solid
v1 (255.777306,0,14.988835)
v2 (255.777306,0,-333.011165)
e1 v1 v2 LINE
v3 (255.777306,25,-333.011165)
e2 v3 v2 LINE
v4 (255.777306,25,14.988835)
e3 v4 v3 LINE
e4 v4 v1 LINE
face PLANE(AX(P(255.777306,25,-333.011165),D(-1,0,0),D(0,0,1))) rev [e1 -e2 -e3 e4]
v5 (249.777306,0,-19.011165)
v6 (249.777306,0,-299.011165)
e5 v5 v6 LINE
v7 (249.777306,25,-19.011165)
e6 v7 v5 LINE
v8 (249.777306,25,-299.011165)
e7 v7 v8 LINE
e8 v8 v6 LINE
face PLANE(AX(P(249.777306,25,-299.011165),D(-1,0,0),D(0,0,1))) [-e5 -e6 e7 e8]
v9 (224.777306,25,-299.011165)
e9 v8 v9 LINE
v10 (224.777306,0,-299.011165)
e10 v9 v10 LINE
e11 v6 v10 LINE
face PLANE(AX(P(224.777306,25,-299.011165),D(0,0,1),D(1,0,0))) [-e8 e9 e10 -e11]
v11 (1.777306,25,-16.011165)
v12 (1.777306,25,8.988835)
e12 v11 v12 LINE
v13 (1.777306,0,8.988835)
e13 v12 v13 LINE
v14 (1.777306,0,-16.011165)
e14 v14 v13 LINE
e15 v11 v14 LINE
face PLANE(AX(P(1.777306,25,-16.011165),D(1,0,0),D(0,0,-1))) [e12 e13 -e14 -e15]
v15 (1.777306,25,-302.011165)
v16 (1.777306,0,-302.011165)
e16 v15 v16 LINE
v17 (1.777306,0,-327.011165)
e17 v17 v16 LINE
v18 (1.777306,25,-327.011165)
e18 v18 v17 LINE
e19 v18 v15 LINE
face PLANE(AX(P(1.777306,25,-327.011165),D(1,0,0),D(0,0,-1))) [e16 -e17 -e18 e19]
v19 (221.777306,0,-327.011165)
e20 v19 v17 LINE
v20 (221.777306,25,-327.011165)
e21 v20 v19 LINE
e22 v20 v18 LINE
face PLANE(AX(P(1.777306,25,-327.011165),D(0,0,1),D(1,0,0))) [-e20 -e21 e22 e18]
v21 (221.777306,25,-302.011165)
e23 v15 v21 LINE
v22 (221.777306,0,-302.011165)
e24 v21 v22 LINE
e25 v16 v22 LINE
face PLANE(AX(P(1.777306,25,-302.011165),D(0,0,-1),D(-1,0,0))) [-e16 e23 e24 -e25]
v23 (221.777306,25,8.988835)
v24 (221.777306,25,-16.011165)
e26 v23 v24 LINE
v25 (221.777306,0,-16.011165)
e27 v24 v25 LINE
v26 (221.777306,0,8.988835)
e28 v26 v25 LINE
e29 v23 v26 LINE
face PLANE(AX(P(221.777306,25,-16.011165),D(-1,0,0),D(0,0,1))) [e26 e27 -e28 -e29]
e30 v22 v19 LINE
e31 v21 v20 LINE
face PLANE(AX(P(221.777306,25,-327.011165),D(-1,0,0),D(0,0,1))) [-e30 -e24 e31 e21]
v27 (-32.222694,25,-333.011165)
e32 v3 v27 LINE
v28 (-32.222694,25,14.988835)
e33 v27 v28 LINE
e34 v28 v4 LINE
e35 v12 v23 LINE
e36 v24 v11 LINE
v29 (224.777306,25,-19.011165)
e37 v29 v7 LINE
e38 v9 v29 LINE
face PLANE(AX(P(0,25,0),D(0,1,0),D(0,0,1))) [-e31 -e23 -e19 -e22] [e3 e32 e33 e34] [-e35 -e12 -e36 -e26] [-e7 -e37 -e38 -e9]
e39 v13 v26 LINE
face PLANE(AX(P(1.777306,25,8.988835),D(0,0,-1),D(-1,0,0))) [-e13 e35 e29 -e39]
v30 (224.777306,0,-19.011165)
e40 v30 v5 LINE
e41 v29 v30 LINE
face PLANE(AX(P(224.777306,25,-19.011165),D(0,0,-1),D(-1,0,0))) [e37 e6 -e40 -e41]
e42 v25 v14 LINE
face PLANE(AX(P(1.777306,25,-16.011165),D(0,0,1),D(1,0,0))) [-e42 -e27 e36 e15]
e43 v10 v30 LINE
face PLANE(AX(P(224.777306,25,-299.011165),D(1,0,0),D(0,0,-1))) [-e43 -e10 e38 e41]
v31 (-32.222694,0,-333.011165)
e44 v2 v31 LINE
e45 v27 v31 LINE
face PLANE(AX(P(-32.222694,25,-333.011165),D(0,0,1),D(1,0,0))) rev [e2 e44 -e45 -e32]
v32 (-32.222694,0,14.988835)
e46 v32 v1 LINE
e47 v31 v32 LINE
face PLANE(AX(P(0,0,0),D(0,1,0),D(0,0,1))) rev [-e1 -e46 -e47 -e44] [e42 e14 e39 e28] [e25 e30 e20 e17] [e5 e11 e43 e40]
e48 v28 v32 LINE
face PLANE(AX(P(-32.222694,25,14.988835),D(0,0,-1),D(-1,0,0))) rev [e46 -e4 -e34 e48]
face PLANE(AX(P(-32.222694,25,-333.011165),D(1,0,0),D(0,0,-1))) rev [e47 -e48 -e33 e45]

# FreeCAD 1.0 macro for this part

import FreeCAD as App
import Part
import Sketcher
from FreeCAD import Vector

doc = App.newDocument("Part")
body = doc.addObject("PartDesign::Body", "Body")

# Sketch on XZ plane
sketch1 = body.newObject("Sketcher::SketchObject", "Sketch")
sketch1.AttachmentSupport = (doc.getObject("XZ_Plane"), [""])
sketch1.MapMode = "FlatFace"
sketch1.addGeometry(Part.LineSegment(Vector(-32, -333, 0), Vector(-32, 15, 0)), False)
sketch1.addGeometry(Part.LineSegment(Vector(-32, 15, 0), Vector(256, 15, 0)), False)
sketch1.addGeometry(Part.LineSegment(Vector(256, 15, 0), Vector(256, -333, 0)), False)
sketch1.addGeometry(Part.LineSegment(Vector(256, -333, 0), Vector(-32, -333, 0)), False)
sketch1.addConstraint(Sketcher.Constraint("Coincident", 0, 2, 1, 1))
sketch1.addConstraint(Sketcher.Constraint("Coincident", 1, 2, 2, 1))
sketch1.addConstraint(Sketcher.Constraint("Coincident", 2, 2, 3, 1))
sketch1.addConstraint(Sketcher.Constraint("Coincident", 3, 2, 0, 1))
sketch1.addConstraint(Sketcher.Constraint("Vertical", 0))
sketch1.addConstraint(Sketcher.Constraint("Horizontal", 1))
sketch1.addConstraint(Sketcher.Constraint("Vertical", 2))
sketch1.addConstraint(Sketcher.Constraint("Horizontal", 3))
sketch1.addConstraint(Sketcher.Constraint("DistanceX", 1, 1, 1, 2, 288.0))
sketch1.addConstraint(Sketcher.Constraint("DistanceY", 0, 1, 0, 2, 348.0))
sketch1.addConstraint(Sketcher.Constraint("DistanceX", 0, 2, -1, 1, 32.222694))
sketch1.addConstraint(Sketcher.Constraint("DistanceY", -1, 1, 0, 2, 14.988835))
pad1 = body.newObject("PartDesign::Pad", "Pad")
pad1.Profile = sketch1
pad1.Length = 25
pad1.Reversed = True

# Sketch on XZ plane
sketch2 = body.newObject("Sketcher::SketchObject", "Sketch001")
sketch2.AttachmentSupport = (doc.getObject("XZ_Plane"), [""])
sketch2.MapMode = "FlatFace"
sketch2.addGeometry(Part.LineSegment(Vector(2, -327, 0), Vector(2, -302, 0)), False)
sketch2.addGeometry(Part.LineSegment(Vector(2, -302, 0), Vector(222, -302, 0)), False)
sketch2.addGeometry(Part.LineSegment(Vector(222, -302, 0), Vector(222, -327, 0)), False)
sketch2.addGeometry(Part.LineSegment(Vector(222, -327, 0), Vector(2, -327, 0)), False)
sketch2.addGeometry(Part.LineSegment(Vector(2, -16, 0), Vector(2, 9, 0)), False)
sketch2.addGeometry(Part.LineSegment(Vector(2, 9, 0), Vector(222, 9, 0)), False)
sketch2.addGeometry(Part.LineSegment(Vector(222, 9, 0), Vector(222, -16, 0)), False)
sketch2.addGeometry(Part.LineSegment(Vector(222, -16, 0), Vector(2, -16, 0)), False)
sketch2.addGeometry(Part.LineSegment(Vector(225, -299, 0), Vector(225, -19, 0)), False)
sketch2.addGeometry(Part.LineSegment(Vector(225, -19, 0), Vector(250, -19, 0)), False)
sketch2.addGeometry(Part.LineSegment(Vector(250, -19, 0), Vector(250, -299, 0)), False)
sketch2.addGeometry(Part.LineSegment(Vector(250, -299, 0), Vector(225, -299, 0)), False)
sketch2.addConstraint(Sketcher.Constraint("Coincident", 0, 2, 1, 1))
sketch2.addConstraint(Sketcher.Constraint("Coincident", 1, 2, 2, 1))
sketch2.addConstraint(Sketcher.Constraint("Coincident", 2, 2, 3, 1))
sketch2.addConstraint(Sketcher.Constraint("Coincident", 3, 2, 0, 1))
sketch2.addConstraint(Sketcher.Constraint("Coincident", 4, 2, 5, 1))
sketch2.addConstraint(Sketcher.Constraint("Coincident", 5, 2, 6, 1))
sketch2.addConstraint(Sketcher.Constraint("Coincident", 6, 2, 7, 1))
sketch2.addConstraint(Sketcher.Constraint("Coincident", 7, 2, 4, 1))
sketch2.addConstraint(Sketcher.Constraint("Coincident", 8, 2, 9, 1))
sketch2.addConstraint(Sketcher.Constraint("Coincident", 9, 2, 10, 1))
sketch2.addConstraint(Sketcher.Constraint("Coincident", 10, 2, 11, 1))
sketch2.addConstraint(Sketcher.Constraint("Coincident", 11, 2, 8, 1))
sketch2.addConstraint(Sketcher.Constraint("Vertical", 0))
sketch2.addConstraint(Sketcher.Constraint("Horizontal", 1))
sketch2.addConstraint(Sketcher.Constraint("Vertical", 2))
sketch2.addConstraint(Sketcher.Constraint("Horizontal", 3))
sketch2.addConstraint(Sketcher.Constraint("Vertical", 4))
sketch2.addConstraint(Sketcher.Constraint("Horizontal", 5))
sketch2.addConstraint(Sketcher.Constraint("Vertical", 6))
sketch2.addConstraint(Sketcher.Constraint("Horizontal", 7))
sketch2.addConstraint(Sketcher.Constraint("Vertical", 8))
sketch2.addConstraint(Sketcher.Constraint("Horizontal", 9))
sketch2.addConstraint(Sketcher.Constraint("Vertical", 10))
sketch2.addConstraint(Sketcher.Constraint("Horizontal", 11))
sketch2.addConstraint(Sketcher.Constraint("Vertical", 3, 2, 4, 2))
sketch2.addConstraint(Sketcher.Constraint("Vertical", 2, 2, 5, 2))
sketch2.addConstraint(Sketcher.Constraint("Equal", 11, 0))
sketch2.addConstraint(Sketcher.Constraint("Equal", 2, 4))
sketch2.addConstraint(Sketcher.Constraint("DistanceX", 1, 1, 1, 2, 220.0))
sketch2.addConstraint(Sketcher.Constraint("DistanceX", 9, 1, 9, 2, 25.0))
sketch2.addConstraint(Sketcher.Constraint("DistanceY", 8, 1, 8, 2, 280.0))
sketch2.addConstraint(Sketcher.Constraint("DistanceY", 0, 2, 4, 2, 311.0))
sketch2.addConstraint(Sketcher.Constraint("DistanceX", 6, 2, 8, 2, 3.0))
sketch2.addConstraint(Sketcher.Constraint("DistanceY", 8, 2, 6, 2, 3.0))
sketch2.addConstraint(Sketcher.Constraint("DistanceX", -1, 1, 0, 2, 1.777306))
sketch2.addConstraint(Sketcher.Constraint("DistanceY", 0, 2, -1, 1, 302.011165))
pocket1 = body.newObject("PartDesign::Pocket", "Pocket")
pocket1.Profile = sketch2
pocket1.Length = 25

doc.recompute()
